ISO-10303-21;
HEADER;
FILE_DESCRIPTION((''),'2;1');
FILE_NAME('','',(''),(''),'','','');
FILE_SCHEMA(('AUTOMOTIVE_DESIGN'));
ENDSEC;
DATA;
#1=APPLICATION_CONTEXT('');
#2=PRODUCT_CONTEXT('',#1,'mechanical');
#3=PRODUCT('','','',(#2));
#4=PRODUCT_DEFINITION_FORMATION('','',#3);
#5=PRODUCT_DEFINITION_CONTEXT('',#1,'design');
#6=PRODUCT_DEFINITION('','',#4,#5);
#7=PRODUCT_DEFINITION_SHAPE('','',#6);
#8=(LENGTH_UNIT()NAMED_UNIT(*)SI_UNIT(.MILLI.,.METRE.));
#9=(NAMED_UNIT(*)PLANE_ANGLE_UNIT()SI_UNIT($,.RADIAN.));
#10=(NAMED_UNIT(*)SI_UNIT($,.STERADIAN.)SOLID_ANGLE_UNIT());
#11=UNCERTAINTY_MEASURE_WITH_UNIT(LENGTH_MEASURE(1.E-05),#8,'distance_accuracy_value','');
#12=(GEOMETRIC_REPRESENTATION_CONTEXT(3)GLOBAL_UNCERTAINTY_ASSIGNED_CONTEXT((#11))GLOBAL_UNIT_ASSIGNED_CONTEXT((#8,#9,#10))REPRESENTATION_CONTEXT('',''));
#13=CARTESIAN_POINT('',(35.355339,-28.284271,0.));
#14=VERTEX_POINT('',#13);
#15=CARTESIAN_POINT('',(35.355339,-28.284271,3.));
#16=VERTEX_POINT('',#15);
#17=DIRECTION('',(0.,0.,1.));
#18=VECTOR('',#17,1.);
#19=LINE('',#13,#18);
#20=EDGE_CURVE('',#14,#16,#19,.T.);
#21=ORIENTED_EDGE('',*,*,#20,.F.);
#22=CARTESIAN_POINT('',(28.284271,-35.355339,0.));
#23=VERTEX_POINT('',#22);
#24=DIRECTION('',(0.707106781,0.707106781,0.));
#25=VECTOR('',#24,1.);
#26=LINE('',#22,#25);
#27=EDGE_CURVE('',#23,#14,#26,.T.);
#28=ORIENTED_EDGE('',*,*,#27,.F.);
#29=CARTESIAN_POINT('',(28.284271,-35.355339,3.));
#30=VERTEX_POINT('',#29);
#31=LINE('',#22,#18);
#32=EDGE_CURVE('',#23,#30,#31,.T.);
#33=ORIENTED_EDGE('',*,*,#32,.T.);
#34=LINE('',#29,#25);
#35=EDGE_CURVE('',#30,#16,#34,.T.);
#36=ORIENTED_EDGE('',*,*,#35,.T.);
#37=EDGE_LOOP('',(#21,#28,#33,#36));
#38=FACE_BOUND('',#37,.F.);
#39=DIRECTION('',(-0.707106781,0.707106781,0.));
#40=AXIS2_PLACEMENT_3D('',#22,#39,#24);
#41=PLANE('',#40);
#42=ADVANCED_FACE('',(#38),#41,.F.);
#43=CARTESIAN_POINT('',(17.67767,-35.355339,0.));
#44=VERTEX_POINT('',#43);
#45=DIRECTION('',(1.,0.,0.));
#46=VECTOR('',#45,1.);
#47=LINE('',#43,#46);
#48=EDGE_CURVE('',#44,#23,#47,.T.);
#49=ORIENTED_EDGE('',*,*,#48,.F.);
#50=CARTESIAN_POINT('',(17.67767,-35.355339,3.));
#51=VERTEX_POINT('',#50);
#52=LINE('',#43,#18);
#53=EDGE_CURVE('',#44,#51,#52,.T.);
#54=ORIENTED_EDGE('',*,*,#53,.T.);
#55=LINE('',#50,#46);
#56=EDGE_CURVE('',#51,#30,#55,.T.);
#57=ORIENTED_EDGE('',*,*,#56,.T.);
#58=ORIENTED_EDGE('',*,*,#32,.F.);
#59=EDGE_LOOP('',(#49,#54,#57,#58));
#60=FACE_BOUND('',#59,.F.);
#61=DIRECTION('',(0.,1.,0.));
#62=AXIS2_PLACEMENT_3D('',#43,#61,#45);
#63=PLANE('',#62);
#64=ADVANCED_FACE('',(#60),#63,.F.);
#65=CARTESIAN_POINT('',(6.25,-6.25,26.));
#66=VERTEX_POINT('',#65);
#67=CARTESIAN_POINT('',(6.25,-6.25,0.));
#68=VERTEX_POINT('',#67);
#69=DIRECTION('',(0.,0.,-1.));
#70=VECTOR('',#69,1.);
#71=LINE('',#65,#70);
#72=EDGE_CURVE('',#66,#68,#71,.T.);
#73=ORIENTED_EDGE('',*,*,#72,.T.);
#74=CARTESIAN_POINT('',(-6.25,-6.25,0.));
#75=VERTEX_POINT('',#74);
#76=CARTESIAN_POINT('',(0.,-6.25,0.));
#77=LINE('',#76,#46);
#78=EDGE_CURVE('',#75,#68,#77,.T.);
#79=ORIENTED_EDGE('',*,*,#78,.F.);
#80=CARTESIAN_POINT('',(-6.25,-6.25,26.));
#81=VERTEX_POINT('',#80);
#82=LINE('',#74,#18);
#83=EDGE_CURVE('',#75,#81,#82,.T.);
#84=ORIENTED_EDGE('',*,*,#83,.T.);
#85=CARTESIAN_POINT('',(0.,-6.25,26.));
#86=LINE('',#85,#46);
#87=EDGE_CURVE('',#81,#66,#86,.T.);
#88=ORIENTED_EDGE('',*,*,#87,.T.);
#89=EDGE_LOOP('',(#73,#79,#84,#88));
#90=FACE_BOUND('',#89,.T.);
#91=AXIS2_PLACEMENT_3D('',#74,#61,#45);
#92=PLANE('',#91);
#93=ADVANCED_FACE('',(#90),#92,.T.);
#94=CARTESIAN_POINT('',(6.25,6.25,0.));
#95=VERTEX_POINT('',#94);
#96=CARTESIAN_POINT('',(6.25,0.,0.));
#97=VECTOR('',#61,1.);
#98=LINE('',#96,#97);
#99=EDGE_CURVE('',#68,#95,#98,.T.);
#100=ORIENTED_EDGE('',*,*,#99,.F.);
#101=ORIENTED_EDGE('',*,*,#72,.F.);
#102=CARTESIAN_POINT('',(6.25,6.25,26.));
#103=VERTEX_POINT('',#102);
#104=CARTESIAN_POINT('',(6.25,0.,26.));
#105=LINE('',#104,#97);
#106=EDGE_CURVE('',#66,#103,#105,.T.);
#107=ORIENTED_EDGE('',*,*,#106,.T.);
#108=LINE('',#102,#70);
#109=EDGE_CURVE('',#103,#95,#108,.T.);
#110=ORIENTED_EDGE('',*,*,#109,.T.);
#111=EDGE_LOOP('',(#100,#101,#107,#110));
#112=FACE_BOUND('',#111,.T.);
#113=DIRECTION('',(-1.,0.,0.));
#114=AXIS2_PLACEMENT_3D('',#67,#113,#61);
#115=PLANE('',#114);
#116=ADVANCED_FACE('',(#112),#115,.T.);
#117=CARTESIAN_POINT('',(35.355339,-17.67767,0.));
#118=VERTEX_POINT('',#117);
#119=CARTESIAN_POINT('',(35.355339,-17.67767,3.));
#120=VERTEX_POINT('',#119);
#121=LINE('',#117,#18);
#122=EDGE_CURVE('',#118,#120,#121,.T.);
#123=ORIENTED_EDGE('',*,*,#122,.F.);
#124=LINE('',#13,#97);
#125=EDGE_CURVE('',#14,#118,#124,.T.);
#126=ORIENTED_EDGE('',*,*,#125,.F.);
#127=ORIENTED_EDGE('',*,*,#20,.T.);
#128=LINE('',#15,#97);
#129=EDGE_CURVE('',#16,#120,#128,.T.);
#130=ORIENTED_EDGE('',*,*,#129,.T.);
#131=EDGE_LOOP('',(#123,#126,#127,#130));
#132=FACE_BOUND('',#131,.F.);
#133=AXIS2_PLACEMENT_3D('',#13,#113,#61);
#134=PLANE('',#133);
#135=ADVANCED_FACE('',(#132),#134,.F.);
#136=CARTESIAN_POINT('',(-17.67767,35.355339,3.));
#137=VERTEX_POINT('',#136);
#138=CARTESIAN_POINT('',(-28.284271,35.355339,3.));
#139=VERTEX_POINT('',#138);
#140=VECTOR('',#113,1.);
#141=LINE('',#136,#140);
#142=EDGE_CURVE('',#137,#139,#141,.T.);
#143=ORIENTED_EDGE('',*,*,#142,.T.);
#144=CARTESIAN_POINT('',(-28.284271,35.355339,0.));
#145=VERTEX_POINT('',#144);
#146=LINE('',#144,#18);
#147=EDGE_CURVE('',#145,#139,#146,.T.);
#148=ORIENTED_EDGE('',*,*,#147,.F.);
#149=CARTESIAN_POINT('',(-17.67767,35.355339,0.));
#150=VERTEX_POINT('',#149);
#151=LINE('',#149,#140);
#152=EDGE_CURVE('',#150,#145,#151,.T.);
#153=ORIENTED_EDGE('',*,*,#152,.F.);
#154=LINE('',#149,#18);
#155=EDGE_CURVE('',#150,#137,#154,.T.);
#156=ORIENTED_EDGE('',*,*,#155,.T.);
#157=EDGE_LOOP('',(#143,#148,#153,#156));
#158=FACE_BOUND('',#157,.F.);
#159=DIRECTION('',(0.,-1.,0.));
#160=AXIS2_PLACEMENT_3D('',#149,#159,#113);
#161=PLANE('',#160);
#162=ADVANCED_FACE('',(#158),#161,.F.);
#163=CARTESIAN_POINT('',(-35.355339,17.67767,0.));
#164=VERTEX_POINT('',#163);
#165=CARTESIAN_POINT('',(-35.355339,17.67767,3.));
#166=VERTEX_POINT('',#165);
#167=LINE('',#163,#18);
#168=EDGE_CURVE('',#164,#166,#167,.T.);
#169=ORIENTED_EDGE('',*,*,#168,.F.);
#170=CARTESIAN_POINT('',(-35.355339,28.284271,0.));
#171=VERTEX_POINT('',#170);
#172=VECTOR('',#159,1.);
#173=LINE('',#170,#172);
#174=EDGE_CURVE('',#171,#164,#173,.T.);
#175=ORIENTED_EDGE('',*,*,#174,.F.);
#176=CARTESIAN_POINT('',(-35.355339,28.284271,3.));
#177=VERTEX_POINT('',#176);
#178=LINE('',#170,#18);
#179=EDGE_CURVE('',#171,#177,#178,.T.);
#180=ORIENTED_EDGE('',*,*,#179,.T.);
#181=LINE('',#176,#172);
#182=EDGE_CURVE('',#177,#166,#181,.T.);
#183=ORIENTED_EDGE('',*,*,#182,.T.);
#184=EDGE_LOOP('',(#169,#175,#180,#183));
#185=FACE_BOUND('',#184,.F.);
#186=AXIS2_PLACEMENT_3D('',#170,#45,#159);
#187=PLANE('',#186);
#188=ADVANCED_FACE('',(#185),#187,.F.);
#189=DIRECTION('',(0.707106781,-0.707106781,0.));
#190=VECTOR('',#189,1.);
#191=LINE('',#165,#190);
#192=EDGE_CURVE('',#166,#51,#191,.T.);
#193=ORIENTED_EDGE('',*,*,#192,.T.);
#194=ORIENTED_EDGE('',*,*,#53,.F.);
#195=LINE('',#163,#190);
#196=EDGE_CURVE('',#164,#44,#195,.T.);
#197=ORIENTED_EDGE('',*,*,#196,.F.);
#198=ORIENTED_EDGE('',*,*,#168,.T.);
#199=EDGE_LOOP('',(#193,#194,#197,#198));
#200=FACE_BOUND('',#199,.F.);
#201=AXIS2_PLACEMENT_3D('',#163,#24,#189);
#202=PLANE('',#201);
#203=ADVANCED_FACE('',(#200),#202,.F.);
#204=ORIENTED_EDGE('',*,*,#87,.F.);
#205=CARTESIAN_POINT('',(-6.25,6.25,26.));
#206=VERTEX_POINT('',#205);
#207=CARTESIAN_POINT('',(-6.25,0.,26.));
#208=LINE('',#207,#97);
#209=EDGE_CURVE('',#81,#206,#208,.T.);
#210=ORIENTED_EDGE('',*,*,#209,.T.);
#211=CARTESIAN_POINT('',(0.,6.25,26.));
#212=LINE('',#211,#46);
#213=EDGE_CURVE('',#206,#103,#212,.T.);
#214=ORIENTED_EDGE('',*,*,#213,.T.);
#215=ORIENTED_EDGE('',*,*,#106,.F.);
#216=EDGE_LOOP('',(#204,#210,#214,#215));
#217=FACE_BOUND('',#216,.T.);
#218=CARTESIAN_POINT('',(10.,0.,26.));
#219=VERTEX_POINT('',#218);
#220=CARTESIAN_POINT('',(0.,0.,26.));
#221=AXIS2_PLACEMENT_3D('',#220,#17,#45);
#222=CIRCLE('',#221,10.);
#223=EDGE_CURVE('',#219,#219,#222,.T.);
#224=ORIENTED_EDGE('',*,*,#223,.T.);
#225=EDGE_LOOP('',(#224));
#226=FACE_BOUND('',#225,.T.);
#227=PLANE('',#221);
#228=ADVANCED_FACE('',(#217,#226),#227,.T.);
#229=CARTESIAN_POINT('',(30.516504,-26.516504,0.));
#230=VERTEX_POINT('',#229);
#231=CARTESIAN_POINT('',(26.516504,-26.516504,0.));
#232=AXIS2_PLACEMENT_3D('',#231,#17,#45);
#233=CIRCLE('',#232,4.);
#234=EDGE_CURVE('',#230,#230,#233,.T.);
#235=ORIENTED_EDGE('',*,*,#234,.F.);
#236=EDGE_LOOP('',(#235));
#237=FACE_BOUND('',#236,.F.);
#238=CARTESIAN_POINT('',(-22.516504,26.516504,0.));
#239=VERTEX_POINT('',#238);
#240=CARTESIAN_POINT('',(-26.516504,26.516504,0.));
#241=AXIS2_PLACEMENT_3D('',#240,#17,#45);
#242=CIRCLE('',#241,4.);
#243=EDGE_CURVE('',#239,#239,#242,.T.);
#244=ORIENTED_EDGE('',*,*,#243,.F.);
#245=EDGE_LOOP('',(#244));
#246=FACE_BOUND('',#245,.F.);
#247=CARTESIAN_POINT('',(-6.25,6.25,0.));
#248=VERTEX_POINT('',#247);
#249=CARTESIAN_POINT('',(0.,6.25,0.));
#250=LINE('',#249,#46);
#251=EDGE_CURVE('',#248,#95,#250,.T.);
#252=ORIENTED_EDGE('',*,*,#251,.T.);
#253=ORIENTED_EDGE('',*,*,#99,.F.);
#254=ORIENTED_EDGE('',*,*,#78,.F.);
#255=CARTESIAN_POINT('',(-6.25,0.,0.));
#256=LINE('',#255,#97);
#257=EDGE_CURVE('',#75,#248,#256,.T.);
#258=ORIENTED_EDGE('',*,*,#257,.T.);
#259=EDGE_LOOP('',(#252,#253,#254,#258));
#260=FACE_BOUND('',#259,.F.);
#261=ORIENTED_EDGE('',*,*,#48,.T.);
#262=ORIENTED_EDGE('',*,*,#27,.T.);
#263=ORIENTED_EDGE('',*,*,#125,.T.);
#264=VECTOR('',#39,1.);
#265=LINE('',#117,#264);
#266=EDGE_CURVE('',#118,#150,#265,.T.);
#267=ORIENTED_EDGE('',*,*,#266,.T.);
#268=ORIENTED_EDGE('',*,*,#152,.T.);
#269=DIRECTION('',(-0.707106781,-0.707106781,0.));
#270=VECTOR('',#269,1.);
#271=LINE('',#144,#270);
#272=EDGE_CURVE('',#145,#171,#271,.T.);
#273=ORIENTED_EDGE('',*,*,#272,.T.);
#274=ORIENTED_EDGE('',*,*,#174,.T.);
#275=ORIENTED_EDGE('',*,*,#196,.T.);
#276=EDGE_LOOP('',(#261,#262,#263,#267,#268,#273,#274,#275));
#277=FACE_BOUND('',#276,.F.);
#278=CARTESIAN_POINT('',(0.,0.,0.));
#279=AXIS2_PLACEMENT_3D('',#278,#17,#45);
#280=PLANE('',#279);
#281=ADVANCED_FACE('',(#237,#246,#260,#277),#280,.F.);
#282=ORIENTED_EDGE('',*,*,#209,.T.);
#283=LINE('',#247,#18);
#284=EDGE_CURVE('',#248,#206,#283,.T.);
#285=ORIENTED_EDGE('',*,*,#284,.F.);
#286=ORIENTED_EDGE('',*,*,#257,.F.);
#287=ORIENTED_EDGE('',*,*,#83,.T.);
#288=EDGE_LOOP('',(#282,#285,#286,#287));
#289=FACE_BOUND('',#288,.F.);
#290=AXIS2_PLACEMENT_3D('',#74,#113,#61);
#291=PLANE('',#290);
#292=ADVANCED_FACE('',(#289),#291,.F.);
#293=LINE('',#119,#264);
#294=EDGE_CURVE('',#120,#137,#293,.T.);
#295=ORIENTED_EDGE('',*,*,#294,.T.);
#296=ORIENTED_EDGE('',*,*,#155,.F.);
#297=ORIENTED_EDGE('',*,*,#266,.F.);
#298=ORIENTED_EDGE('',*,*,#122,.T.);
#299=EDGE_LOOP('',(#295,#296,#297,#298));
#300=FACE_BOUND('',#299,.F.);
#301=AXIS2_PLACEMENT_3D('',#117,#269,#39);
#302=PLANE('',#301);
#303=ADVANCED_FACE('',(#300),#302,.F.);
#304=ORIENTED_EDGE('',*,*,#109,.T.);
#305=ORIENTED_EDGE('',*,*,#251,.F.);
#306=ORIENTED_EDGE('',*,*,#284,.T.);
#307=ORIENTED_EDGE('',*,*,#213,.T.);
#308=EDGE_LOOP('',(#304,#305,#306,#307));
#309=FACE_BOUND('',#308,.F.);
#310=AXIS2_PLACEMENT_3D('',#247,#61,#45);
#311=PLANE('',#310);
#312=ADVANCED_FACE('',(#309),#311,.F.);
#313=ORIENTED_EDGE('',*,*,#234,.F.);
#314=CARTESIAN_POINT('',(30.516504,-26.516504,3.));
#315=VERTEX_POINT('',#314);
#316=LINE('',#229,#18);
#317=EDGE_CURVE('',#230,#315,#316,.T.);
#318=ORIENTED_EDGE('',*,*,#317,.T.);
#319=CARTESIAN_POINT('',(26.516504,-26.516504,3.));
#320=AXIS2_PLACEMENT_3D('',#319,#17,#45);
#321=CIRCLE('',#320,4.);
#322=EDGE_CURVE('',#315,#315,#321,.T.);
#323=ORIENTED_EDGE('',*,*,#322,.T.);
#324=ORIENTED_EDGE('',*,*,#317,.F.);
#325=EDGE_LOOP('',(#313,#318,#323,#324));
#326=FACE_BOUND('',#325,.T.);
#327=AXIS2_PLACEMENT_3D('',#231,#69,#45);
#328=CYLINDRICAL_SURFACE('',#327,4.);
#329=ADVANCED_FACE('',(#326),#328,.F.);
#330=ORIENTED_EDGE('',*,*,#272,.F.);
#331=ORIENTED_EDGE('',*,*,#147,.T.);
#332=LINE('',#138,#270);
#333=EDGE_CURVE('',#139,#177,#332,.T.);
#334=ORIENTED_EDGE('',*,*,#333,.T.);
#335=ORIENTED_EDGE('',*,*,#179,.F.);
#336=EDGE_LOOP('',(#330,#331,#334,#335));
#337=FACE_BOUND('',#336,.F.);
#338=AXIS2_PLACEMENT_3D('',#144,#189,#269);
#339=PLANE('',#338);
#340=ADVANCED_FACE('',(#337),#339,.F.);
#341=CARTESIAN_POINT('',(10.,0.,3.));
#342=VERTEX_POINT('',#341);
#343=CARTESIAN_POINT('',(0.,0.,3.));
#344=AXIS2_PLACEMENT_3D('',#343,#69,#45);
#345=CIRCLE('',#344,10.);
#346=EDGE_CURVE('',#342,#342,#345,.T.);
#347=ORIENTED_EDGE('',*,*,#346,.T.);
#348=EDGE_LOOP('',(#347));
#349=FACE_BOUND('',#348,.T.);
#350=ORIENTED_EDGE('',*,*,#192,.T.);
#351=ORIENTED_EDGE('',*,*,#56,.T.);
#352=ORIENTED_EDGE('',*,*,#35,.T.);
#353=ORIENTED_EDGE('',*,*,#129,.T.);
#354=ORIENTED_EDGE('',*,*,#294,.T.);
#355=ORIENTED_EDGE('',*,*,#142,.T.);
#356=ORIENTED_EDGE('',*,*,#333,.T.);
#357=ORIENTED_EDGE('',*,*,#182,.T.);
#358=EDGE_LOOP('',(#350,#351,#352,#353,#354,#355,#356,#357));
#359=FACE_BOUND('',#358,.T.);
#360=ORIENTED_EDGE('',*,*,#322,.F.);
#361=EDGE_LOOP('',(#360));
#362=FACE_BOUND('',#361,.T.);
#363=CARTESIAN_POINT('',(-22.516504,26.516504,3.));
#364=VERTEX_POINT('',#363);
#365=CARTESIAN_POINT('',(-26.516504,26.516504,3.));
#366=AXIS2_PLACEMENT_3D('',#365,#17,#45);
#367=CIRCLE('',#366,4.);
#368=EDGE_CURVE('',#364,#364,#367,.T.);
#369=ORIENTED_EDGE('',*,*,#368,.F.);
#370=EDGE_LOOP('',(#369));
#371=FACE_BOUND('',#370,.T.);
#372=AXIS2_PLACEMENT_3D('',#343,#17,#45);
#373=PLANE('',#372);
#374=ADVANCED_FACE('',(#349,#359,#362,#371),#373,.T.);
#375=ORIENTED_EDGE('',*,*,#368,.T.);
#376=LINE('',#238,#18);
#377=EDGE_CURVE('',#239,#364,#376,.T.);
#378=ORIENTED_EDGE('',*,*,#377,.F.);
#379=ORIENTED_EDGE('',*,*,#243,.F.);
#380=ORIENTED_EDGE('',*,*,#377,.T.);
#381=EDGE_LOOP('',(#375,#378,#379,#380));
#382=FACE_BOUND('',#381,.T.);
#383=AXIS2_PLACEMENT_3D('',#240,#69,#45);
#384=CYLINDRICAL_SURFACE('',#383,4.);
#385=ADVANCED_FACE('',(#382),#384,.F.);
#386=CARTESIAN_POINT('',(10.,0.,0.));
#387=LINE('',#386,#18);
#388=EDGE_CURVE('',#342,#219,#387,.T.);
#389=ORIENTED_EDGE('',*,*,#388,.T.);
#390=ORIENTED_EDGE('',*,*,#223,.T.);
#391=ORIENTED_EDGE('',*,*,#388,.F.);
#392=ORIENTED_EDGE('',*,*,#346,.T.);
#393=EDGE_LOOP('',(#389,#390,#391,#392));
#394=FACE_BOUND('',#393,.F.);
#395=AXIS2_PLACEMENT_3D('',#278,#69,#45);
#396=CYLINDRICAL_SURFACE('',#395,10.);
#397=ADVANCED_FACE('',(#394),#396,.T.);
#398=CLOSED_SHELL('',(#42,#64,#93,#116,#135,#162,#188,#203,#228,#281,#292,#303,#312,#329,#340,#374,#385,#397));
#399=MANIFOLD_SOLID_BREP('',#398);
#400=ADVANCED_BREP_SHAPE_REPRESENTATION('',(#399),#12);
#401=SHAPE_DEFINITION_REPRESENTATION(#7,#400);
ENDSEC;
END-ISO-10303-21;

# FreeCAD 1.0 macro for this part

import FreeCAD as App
import Part
import Sketcher
from FreeCAD import Vector
Q = App.Units.Quantity

doc = App.newDocument("Part")
body = doc.addObject("PartDesign::Body", "Body")

# Sketch on XY plane
sketch1 = body.newObject("Sketcher::SketchObject", "Sketch")
sketch1.AttachmentSupport = (doc.getObject("XY_Plane"), [""])
sketch1.MapMode = "FlatFace"
sketch1.addGeometry([
    Part.LineSegment(Vector(-17.7, 35.4, 0), Vector(-28.3, 35.4, 0)),  # 0
    Part.LineSegment(Vector(-28.3, 35.4, 0), Vector(-35.4, 28.3, 0)),  # 1
    Part.LineSegment(Vector(-35.4, 28.3, 0), Vector(-35.4, 17.7, 0)),  # 2
    Part.LineSegment(Vector(-35.4, 17.7, 0), Vector(17.7, -35.4, 0)),  # 3
    Part.LineSegment(Vector(17.7, -35.4, 0), Vector(28.3, -35.4, 0)),  # 4
    Part.LineSegment(Vector(28.3, -35.4, 0), Vector(35.4, -28.3, 0)),  # 5
    Part.LineSegment(Vector(35.4, -28.3, 0), Vector(35.4, -17.7, 0)),  # 6
    Part.LineSegment(Vector(35.4, -17.7, 0), Vector(-17.7, 35.4, 0)),  # 7
    Part.Circle(Vector(26.5, -26.5, 0), Vector(0, 0, 1), 4),  # 8
    Part.Circle(Vector(-26.5, 26.5, 0), Vector(0, 0, 1), 4),  # 9
    Part.LineSegment(Vector(6.2, -6.2, 0), Vector(-6.2, -6.2, 0)),  # 10
    Part.LineSegment(Vector(-6.2, -6.2, 0), Vector(-6.2, 6.2, 0)),  # 11
    Part.LineSegment(Vector(-6.2, 6.2, 0), Vector(6.2, 6.2, 0)),  # 12
    Part.LineSegment(Vector(6.2, 6.2, 0), Vector(6.2, -6.2, 0)),  # 13
], False)
sketch1.addConstraint([
    Sketcher.Constraint("Coincident", 0, 2, 1, 1),
    Sketcher.Constraint("Coincident", 1, 2, 2, 1),
    Sketcher.Constraint("Coincident", 2, 2, 3, 1),
    Sketcher.Constraint("Coincident", 3, 2, 4, 1),
    Sketcher.Constraint("Coincident", 4, 2, 5, 1),
    Sketcher.Constraint("Coincident", 5, 2, 6, 1),
    Sketcher.Constraint("Coincident", 6, 2, 7, 1),
    Sketcher.Constraint("Coincident", 7, 2, 0, 1),
    Sketcher.Constraint("Coincident", 10, 2, 11, 1),
    Sketcher.Constraint("Coincident", 11, 2, 12, 1),
    Sketcher.Constraint("Coincident", 12, 2, 13, 1),
    Sketcher.Constraint("Coincident", 13, 2, 10, 1),
    Sketcher.Constraint("Horizontal", 0),
    Sketcher.Constraint("Vertical", 2),
    Sketcher.Constraint("Horizontal", 4),
    Sketcher.Constraint("Vertical", 6),
    Sketcher.Constraint("Horizontal", 10),
    Sketcher.Constraint("Vertical", 11),
    Sketcher.Constraint("Horizontal", 12),
    Sketcher.Constraint("Vertical", 13),
    Sketcher.Constraint("Equal", 8, 9),
    Sketcher.Constraint("Symmetric", 8, 3, 9, 3, -1, 1),
    Sketcher.Constraint("Symmetric", 0, 2, 4, 2, -1, 1),
    Sketcher.Constraint("Symmetric", 1, 2, 5, 2, -1, 1),
    Sketcher.Constraint("Symmetric", 10, 2, 12, 2, -1, 1),
    Sketcher.Constraint("Perpendicular", 1, 3),
    Sketcher.Constraint("Perpendicular", 5, 7),
    Sketcher.Constraint("Equal", 0, 4),
    Sketcher.Constraint("Equal", 4, 2),
    Sketcher.Constraint("Equal", 12, 11),
    Sketcher.Constraint("Diameter", 8, Q("8 mm")),
    Sketcher.Constraint("Angle", 1, Q("-135 deg")),
    Sketcher.Constraint("Distance", 1, Q("10 mm")),
    Sketcher.Constraint("Distance", 3, Q("75.000001 mm")),
    Sketcher.Constraint("DistanceX", 10, 2, 10, 1, Q("12.5 mm")),
    Sketcher.Constraint("DistanceX", 0, 2, 0, 1, Q("10.606601 mm")),
    Sketcher.Constraint("DistanceX", 9, 3, 8, 3, Q("53.033008 mm")),
    Sketcher.Constraint("DistanceY", 8, 3, 9, 3, Q("53.033008 mm")),
])
pad1 = body.newObject("PartDesign::Pad", "Pad")
pad1.Profile = sketch1
pad1.Length = 3

# Sketch on XY plane
sketch2 = body.newObject("Sketcher::SketchObject", "Sketch001")
sketch2.AttachmentSupport = (doc.getObject("XY_Plane"), [""])
sketch2.MapMode = "FlatFace"
sketch2.addGeometry([
    Part.Circle(Vector(0, 0, 0), Vector(0, 0, 1), 10),  # 0
    Part.LineSegment(Vector(6, -6, 0), Vector(-6, -6, 0)),  # 1
    Part.LineSegment(Vector(-6, -6, 0), Vector(-6, 6, 0)),  # 2
    Part.LineSegment(Vector(-6, 6, 0), Vector(6, 6, 0)),  # 3
    Part.LineSegment(Vector(6, 6, 0), Vector(6, -6, 0)),  # 4
], False)
sketch2.addConstraint([
    Sketcher.Constraint("Coincident", 1, 2, 2, 1),
    Sketcher.Constraint("Coincident", 2, 2, 3, 1),
    Sketcher.Constraint("Coincident", 3, 2, 4, 1),
    Sketcher.Constraint("Coincident", 4, 2, 1, 1),
    Sketcher.Constraint("Horizontal", 1),
    Sketcher.Constraint("Vertical", 2),
    Sketcher.Constraint("Horizontal", 3),
    Sketcher.Constraint("Vertical", 4),
    Sketcher.Constraint("Coincident", 0, 3, -1, 1),
    Sketcher.Constraint("Symmetric", 1, 2, 3, 2, -1, 1),
    Sketcher.Constraint("Equal", 3, 2),
    Sketcher.Constraint("Diameter", 0, Q("20 mm")),
    Sketcher.Constraint("DistanceX", 1, 2, 1, 1, Q("12.5 mm")),
])
pad2 = body.newObject("PartDesign::Pad", "Pad001")
pad2.Profile = sketch2
pad2.Length = 26

doc.recompute()
